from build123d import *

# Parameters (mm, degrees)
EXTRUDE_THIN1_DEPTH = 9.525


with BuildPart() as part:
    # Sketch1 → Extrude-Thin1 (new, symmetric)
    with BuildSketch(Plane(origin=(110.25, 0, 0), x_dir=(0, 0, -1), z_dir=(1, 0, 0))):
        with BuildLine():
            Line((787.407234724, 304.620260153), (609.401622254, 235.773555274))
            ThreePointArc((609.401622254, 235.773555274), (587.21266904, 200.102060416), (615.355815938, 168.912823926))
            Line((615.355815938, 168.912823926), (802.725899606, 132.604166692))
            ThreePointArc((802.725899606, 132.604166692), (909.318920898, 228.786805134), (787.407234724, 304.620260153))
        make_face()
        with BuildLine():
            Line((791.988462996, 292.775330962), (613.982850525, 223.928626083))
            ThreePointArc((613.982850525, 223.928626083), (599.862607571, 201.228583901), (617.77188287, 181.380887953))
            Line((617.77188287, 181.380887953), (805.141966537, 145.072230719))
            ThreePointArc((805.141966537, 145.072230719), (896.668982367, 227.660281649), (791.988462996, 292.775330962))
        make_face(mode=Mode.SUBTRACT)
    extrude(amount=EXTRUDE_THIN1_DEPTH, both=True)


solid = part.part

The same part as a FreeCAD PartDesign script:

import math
import FreeCAD as App
import Part
import Sketcher
from FreeCAD import Vector
Q = App.Units.Quantity

doc = App.newDocument("Part")
params = doc.addObject("Spreadsheet::Sheet", "Params")
for row, (alias, value) in enumerate([
    ("sketch1_radius", "1.375 in"),
    ("sketch1_radius2", "0.875 in"),
    ("pad1_length", "0.75 in"),
], start=1):
    params.set(f"A{row}", alias)
    params.set(f"B{row}", "=" + value)
    params.setAlias(f"B{row}", alias)

body = doc.addObject("PartDesign::Body", "Body")

sketch1 = doc.addObject("Sketcher::SketchObject", "Sketch")
body.addObject(sketch1)
sketch1.AttachmentSupport = (doc.YZ_Plane, [""])
sketch1.MapMode = "FlatFace"
sketch1.AttachmentOffset = App.Placement(Vector(0, 0, 110.25), App.Rotation())
sketch1.addGeometry(Part.LineSegment(Vector(305, -787, 0), Vector(236, -609, 0)), False)
sketch1.addGeometry(Part.ArcOfCircle(Part.Circle(Vector(203, -622, 0), Vector(0, 0, 1), 35), math.radians(21), math.radians(169)), False)
sketch1.addGeometry(Part.LineSegment(Vector(169, -615, 0), Vector(133, -803, 0)), False)
sketch1.addGeometry(Part.ArcOfCircle(Part.Circle(Vector(221, -820, 0), Vector(0, 0, 1), 90), math.radians(169), math.radians(381)), False)
sketch1.addGeometry(Part.LineSegment(Vector(224, -614, 0), Vector(293, -792, 0)), False)
sketch1.addGeometry(Part.ArcOfCircle(Part.Circle(Vector(221, -820, 0), Vector(0, 0, 1), 77), math.radians(169), math.radians(381)), False)
sketch1.addGeometry(Part.LineSegment(Vector(145, -805, 0), Vector(181, -618, 0)), False)
sketch1.addGeometry(Part.ArcOfCircle(Part.Circle(Vector(203, -622, 0), Vector(0, 0, 1), 22), math.radians(21), math.radians(169)), False)
sketch1.addConstraint(Sketcher.Constraint("Tangent", 0, 2, 1, 1))
sketch1.addConstraint(Sketcher.Constraint("Tangent", 1, 2, 2, 1))
sketch1.addConstraint(Sketcher.Constraint("Tangent", 2, 2, 3, 1))
sketch1.addConstraint(Sketcher.Constraint("Tangent", 3, 2, 0, 1))
sketch1.addConstraint(Sketcher.Constraint("Tangent", 4, 2, 5, 2))
sketch1.addConstraint(Sketcher.Constraint("Tangent", 5, 1, 6, 1))
sketch1.addConstraint(Sketcher.Constraint("Tangent", 6, 2, 7, 2))
sketch1.addConstraint(Sketcher.Constraint("Tangent", 7, 1, 4, 1))
sketch1.addConstraint(Sketcher.Constraint("Coincident", 5, 3, 3, 3))
sketch1.addConstraint(Sketcher.Constraint("Coincident", 7, 3, 1, 3))
sketch1.addConstraint(Sketcher.Constraint("Parallel", 0, 4))
sketch1.addConstraint(Sketcher.Constraint("DistanceX", -1, 1, 1, 3, Q("8 in")))
sketch1.addConstraint(Sketcher.Constraint("Radius", 1, Q("1.375 in")))
sketch1.addConstraint(Sketcher.Constraint("Radius", 7, Q("0.875 in")))
sketch1.addConstraint(Sketcher.Constraint("Radius", 3, 89.85337))
sketch1.addConstraint(Sketcher.Constraint("DistanceX", 0, 2, 3, 2, Q("2.7105002 in")))
sketch1.addConstraint(Sketcher.Constraint("DistanceY", 1, 3, -1, 1, 622.0))
sketch1.addConstraint(Sketcher.Constraint("DistanceY", 2, 2, -1, 1, 802.7259))
sketch1.setExpression("Constraints[12]", "Params.sketch1_radius")
sketch1.setExpression("Constraints[13]", "Params.sketch1_radius2")
pad1 = doc.addObject("PartDesign::Pad", "Pad")
body.addObject(pad1)
pad1.Profile = sketch1
pad1.setExpression("Length", "Params.pad1_length")
pad1.Midplane = True

doc.recompute()
